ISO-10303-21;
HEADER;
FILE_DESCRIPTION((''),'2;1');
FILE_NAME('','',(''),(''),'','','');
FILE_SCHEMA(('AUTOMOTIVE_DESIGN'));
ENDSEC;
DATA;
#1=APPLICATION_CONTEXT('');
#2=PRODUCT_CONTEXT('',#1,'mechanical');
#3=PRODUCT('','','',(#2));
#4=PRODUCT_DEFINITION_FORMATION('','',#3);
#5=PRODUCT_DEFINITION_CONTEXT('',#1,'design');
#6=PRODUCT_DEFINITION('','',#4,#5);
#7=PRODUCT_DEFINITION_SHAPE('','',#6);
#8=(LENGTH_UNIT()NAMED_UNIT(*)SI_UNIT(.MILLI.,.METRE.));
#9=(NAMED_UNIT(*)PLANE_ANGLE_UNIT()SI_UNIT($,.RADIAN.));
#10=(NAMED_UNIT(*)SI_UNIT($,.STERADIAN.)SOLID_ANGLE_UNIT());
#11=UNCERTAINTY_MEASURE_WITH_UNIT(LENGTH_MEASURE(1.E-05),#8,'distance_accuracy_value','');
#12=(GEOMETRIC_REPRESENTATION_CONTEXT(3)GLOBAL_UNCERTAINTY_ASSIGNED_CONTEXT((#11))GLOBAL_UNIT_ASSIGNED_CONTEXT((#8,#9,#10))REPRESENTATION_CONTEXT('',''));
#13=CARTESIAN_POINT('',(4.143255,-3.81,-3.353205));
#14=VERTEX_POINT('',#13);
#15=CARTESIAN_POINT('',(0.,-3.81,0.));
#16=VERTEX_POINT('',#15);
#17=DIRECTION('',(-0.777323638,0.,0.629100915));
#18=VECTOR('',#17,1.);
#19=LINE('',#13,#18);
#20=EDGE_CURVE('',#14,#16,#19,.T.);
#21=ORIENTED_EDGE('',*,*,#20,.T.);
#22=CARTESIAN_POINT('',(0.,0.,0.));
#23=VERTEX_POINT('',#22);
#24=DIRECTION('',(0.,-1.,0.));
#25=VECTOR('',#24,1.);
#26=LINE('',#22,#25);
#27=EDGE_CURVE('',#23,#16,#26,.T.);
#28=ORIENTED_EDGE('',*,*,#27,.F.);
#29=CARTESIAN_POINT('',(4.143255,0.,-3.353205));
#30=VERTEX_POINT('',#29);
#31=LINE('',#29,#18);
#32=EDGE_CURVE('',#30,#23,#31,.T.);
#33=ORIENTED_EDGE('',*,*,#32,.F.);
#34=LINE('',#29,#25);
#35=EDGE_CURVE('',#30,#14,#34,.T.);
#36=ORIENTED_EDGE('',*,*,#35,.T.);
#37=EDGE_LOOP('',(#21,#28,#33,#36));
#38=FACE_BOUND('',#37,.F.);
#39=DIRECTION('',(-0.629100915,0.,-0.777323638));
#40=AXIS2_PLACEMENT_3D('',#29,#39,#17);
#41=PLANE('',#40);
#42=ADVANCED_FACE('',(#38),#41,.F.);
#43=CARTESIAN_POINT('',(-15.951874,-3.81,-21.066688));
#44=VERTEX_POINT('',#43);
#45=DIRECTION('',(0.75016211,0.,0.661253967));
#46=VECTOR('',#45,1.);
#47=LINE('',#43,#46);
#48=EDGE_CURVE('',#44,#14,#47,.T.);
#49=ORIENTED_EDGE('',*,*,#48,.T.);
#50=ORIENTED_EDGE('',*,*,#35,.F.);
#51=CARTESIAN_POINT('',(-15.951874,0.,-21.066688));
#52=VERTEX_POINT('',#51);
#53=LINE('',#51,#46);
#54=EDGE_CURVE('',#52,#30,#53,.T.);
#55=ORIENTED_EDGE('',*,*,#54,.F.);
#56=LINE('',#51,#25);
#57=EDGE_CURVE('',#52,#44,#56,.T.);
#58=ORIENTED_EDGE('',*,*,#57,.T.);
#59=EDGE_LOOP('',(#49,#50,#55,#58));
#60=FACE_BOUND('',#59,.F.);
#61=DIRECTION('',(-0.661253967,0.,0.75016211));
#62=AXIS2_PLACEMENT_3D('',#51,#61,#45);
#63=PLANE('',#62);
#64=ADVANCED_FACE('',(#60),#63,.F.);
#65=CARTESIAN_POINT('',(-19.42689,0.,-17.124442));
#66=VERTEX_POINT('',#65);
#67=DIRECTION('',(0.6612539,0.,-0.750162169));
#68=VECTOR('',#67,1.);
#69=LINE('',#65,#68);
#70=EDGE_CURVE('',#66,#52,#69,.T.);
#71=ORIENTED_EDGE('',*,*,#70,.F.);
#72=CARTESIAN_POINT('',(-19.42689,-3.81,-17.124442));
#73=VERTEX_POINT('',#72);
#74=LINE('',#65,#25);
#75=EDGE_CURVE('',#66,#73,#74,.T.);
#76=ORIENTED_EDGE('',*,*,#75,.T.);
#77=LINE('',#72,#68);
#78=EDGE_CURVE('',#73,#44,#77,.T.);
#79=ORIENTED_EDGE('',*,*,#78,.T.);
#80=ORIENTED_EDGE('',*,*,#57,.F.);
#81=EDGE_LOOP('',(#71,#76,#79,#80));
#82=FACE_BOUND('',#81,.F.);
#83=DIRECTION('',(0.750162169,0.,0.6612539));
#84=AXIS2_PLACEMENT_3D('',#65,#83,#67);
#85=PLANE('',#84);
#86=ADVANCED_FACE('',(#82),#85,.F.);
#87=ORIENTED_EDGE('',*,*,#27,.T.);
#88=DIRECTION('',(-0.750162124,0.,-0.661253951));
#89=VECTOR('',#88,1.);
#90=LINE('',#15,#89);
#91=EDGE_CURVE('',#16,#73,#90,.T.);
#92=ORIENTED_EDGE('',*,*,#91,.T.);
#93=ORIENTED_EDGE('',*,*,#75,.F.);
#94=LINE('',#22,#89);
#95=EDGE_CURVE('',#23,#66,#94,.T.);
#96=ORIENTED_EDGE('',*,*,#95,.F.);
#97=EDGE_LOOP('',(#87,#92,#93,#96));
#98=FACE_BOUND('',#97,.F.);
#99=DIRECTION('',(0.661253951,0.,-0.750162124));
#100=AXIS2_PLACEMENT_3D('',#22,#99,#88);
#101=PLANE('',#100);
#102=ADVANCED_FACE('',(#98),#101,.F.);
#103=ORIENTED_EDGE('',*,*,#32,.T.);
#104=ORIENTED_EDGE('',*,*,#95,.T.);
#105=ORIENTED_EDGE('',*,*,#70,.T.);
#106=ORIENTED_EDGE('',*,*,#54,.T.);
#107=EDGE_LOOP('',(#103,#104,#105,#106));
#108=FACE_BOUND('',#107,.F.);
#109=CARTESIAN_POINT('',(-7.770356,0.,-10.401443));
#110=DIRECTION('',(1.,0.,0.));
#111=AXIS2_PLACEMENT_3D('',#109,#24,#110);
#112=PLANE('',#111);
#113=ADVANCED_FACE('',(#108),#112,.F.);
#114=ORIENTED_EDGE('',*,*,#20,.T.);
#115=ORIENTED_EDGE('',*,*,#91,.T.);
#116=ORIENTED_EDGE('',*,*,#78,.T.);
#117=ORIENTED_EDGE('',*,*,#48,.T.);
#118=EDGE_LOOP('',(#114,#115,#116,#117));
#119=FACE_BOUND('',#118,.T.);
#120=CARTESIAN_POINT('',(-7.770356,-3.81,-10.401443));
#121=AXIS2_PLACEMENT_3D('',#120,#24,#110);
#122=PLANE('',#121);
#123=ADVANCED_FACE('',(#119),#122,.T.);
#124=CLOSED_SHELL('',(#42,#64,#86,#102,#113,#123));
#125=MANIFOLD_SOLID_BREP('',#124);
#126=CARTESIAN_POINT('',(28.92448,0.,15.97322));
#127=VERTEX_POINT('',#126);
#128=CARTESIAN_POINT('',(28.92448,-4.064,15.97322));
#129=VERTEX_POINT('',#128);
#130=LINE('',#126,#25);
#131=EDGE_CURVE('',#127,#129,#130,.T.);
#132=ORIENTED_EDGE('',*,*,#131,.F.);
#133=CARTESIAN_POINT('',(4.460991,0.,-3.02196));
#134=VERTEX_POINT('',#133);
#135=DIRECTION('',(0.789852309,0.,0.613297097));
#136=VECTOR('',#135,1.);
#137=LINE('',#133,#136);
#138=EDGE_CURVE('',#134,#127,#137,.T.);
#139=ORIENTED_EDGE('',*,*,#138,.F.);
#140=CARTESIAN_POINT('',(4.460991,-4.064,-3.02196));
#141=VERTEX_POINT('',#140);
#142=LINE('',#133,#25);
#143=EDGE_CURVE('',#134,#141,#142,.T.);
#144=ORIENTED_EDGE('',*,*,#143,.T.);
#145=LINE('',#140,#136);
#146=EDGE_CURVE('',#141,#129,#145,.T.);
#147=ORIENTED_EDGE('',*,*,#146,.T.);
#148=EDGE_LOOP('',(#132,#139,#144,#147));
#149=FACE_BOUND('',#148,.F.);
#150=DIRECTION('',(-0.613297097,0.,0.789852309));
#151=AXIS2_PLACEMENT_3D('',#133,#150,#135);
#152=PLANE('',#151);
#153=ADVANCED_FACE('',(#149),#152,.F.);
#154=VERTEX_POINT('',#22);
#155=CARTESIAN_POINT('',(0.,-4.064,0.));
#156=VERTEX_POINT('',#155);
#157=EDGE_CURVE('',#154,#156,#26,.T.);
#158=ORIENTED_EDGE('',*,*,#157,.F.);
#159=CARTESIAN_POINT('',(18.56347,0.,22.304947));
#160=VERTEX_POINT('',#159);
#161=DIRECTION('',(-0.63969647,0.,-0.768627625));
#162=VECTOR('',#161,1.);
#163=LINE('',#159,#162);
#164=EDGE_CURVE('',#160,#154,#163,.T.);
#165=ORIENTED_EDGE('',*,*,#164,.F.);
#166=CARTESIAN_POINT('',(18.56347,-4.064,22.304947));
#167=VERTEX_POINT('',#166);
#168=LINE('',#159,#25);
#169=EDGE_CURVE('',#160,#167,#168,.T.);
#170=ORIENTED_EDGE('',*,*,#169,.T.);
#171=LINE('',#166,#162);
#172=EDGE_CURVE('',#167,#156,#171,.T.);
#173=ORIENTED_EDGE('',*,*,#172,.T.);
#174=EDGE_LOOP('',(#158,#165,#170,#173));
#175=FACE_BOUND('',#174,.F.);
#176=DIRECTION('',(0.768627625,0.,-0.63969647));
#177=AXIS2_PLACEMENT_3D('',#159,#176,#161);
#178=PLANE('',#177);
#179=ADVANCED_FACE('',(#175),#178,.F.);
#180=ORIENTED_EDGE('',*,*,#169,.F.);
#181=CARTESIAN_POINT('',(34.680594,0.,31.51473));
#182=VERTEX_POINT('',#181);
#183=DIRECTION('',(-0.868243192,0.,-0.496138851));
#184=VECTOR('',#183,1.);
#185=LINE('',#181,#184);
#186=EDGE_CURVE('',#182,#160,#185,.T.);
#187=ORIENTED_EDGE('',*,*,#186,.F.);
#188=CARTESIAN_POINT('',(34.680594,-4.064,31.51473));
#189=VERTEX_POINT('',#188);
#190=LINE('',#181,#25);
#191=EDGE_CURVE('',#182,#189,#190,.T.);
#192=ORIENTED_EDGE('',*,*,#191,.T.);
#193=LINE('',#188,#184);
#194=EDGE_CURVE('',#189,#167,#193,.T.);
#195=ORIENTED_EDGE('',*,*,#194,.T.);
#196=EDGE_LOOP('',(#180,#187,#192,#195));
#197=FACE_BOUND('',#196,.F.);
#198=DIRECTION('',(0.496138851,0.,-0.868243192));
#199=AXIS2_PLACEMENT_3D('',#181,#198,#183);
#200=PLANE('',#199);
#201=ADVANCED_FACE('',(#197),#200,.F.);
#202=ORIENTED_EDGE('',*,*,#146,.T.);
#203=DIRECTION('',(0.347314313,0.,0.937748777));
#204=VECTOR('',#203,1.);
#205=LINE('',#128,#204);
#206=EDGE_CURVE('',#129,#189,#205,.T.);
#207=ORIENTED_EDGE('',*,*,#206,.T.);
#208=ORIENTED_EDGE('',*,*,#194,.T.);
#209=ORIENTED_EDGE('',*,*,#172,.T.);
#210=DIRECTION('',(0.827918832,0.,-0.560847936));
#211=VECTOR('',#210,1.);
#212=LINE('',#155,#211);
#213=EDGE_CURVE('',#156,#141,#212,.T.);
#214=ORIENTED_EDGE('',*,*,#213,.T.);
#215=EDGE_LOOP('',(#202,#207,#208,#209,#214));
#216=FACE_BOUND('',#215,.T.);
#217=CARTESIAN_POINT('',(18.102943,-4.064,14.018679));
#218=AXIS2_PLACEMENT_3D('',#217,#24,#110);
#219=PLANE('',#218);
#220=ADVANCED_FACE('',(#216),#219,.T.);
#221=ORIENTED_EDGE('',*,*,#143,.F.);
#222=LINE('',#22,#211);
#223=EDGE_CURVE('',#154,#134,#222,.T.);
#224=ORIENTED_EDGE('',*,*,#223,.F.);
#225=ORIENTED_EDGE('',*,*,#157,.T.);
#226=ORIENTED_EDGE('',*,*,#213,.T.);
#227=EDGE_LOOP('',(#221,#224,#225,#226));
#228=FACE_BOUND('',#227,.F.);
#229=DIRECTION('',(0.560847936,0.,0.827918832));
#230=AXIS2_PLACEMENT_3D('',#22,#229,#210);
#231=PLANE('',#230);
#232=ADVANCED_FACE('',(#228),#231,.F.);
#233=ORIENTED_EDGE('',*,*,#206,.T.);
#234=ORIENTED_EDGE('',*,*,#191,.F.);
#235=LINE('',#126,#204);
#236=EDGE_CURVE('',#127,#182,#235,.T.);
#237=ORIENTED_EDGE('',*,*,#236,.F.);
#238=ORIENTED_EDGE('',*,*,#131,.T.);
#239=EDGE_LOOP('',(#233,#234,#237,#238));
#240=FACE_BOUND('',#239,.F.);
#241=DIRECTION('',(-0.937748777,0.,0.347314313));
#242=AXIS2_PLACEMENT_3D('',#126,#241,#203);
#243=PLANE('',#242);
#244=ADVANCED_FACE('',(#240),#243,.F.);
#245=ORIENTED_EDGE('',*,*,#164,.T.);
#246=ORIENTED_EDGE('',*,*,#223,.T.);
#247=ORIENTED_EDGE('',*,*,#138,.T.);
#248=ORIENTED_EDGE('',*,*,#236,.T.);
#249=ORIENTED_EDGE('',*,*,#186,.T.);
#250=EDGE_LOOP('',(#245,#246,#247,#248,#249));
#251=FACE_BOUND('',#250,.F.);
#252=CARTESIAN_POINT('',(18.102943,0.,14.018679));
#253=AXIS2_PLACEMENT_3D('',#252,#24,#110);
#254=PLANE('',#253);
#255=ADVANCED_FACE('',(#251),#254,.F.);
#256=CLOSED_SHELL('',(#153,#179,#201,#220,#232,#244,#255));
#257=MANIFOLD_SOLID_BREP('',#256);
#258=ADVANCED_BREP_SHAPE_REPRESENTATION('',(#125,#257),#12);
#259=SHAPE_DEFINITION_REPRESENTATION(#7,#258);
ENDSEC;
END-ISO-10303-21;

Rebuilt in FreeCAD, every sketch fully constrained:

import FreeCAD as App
import Part
import Sketcher
Q = App.Units.Quantity

doc = App.newDocument("Part")
body = doc.addObject("PartDesign::Body", "Body")

# Sketch on XZ plane
sketch1 = body.newObject("Sketcher::SketchObject", "Sketch")
sketch1.AttachmentSupport = (doc.getObject("XZ_Plane"), [""])
sketch1.MapMode = "FlatFace"
sketch1.addGeometry(Part.LineSegment(App.Vector(4, -3, 0), App.Vector(0, 0, 0)), False)
sketch1.addGeometry(Part.LineSegment(App.Vector(0, 0, 0), App.Vector(-19, -17, 0)), False)
sketch1.addGeometry(Part.LineSegment(App.Vector(-19, -17, 0), App.Vector(-16, -21, 0)), False)
sketch1.addGeometry(Part.LineSegment(App.Vector(-16, -21, 0), App.Vector(4, -3, 0)), False)
sketch1.addConstraint(Sketcher.Constraint("Coincident", 0, 2, 1, 1))
sketch1.addConstraint(Sketcher.Constraint("Coincident", 1, 2, 2, 1))
sketch1.addConstraint(Sketcher.Constraint("Coincident", 2, 2, 3, 1))
sketch1.addConstraint(Sketcher.Constraint("Coincident", 3, 2, 0, 1))
sketch1.addConstraint(Sketcher.Constraint("Coincident", 0, 2, -1, 1))
sketch1.addConstraint(Sketcher.Constraint("Perpendicular", 1, 2))
sketch1.addConstraint(Sketcher.Constraint("Perpendicular", 2, 3))
sketch1.addConstraint(Sketcher.Constraint("Distance", 1, 25.896922))
sketch1.addConstraint(Sketcher.Constraint("Distance", 2, 5.255192))
sketch1.addConstraint(Sketcher.Constraint("DistanceX", 1, 2, -1, 1, 19.42689))
sketch1.addConstraint(Sketcher.Constraint("DistanceX", 2, 2, 3, 2, 20.095129))
pad1 = body.newObject("PartDesign::Pad", "Pad")
pad1.Profile = sketch1
pad1.Length = Q("0.15 in")
body2 = doc.addObject("PartDesign::Body", "Body001")

# Sketch on XZ plane
sketch2 = body2.newObject("Sketcher::SketchObject", "Sketch001")
sketch2.AttachmentSupport = (doc.getObject("XZ_Plane001"), [""])
sketch2.MapMode = "FlatFace"
sketch2.addGeometry(Part.LineSegment(App.Vector(19, 22, 0), App.Vector(0, 0, 0)), False)
sketch2.addGeometry(Part.LineSegment(App.Vector(0, 0, 0), App.Vector(4, -3, 0)), False)
sketch2.addGeometry(Part.LineSegment(App.Vector(4, -3, 0), App.Vector(29, 16, 0)), False)
sketch2.addGeometry(Part.LineSegment(App.Vector(29, 16, 0), App.Vector(35, 32, 0)), False)
sketch2.addGeometry(Part.LineSegment(App.Vector(35, 32, 0), App.Vector(19, 22, 0)), False)
sketch2.addConstraint(Sketcher.Constraint("Coincident", 0, 2, 1, 1))
sketch2.addConstraint(Sketcher.Constraint("Coincident", 1, 2, 2, 1))
sketch2.addConstraint(Sketcher.Constraint("Coincident", 2, 2, 3, 1))
sketch2.addConstraint(Sketcher.Constraint("Coincident", 3, 2, 4, 1))
sketch2.addConstraint(Sketcher.Constraint("Coincident", 4, 2, 0, 1))
sketch2.addConstraint(Sketcher.Constraint("Coincident", 0, 2, -1, 1))
sketch2.addConstraint(Sketcher.Constraint("Distance", 1, 5.388198))
sketch2.addConstraint(Sketcher.Constraint("DistanceX", -1, 1, 1, 2, 4.460991))
sketch2.addConstraint(Sketcher.Constraint("DistanceX", -1, 1, 2, 2, 28.92448))
sketch2.addConstraint(Sketcher.Constraint("DistanceY", -1, 1, 2, 2, 15.97322))
sketch2.addConstraint(Sketcher.Constraint("DistanceY", -1, 1, 3, 2, 31.51473))
sketch2.addConstraint(Sketcher.Constraint("DistanceX", -1, 1, 4, 2, 18.56347))
sketch2.addConstraint(Sketcher.Constraint("Distance", 0, 29.019185))
sketch2.addConstraint(Sketcher.Constraint("Distance", 3, 16.573213))
pad2 = body2.newObject("PartDesign::Pad", "Pad001")
pad2.Profile = sketch2
pad2.Length = Q("0.16 in")

doc.recompute()
